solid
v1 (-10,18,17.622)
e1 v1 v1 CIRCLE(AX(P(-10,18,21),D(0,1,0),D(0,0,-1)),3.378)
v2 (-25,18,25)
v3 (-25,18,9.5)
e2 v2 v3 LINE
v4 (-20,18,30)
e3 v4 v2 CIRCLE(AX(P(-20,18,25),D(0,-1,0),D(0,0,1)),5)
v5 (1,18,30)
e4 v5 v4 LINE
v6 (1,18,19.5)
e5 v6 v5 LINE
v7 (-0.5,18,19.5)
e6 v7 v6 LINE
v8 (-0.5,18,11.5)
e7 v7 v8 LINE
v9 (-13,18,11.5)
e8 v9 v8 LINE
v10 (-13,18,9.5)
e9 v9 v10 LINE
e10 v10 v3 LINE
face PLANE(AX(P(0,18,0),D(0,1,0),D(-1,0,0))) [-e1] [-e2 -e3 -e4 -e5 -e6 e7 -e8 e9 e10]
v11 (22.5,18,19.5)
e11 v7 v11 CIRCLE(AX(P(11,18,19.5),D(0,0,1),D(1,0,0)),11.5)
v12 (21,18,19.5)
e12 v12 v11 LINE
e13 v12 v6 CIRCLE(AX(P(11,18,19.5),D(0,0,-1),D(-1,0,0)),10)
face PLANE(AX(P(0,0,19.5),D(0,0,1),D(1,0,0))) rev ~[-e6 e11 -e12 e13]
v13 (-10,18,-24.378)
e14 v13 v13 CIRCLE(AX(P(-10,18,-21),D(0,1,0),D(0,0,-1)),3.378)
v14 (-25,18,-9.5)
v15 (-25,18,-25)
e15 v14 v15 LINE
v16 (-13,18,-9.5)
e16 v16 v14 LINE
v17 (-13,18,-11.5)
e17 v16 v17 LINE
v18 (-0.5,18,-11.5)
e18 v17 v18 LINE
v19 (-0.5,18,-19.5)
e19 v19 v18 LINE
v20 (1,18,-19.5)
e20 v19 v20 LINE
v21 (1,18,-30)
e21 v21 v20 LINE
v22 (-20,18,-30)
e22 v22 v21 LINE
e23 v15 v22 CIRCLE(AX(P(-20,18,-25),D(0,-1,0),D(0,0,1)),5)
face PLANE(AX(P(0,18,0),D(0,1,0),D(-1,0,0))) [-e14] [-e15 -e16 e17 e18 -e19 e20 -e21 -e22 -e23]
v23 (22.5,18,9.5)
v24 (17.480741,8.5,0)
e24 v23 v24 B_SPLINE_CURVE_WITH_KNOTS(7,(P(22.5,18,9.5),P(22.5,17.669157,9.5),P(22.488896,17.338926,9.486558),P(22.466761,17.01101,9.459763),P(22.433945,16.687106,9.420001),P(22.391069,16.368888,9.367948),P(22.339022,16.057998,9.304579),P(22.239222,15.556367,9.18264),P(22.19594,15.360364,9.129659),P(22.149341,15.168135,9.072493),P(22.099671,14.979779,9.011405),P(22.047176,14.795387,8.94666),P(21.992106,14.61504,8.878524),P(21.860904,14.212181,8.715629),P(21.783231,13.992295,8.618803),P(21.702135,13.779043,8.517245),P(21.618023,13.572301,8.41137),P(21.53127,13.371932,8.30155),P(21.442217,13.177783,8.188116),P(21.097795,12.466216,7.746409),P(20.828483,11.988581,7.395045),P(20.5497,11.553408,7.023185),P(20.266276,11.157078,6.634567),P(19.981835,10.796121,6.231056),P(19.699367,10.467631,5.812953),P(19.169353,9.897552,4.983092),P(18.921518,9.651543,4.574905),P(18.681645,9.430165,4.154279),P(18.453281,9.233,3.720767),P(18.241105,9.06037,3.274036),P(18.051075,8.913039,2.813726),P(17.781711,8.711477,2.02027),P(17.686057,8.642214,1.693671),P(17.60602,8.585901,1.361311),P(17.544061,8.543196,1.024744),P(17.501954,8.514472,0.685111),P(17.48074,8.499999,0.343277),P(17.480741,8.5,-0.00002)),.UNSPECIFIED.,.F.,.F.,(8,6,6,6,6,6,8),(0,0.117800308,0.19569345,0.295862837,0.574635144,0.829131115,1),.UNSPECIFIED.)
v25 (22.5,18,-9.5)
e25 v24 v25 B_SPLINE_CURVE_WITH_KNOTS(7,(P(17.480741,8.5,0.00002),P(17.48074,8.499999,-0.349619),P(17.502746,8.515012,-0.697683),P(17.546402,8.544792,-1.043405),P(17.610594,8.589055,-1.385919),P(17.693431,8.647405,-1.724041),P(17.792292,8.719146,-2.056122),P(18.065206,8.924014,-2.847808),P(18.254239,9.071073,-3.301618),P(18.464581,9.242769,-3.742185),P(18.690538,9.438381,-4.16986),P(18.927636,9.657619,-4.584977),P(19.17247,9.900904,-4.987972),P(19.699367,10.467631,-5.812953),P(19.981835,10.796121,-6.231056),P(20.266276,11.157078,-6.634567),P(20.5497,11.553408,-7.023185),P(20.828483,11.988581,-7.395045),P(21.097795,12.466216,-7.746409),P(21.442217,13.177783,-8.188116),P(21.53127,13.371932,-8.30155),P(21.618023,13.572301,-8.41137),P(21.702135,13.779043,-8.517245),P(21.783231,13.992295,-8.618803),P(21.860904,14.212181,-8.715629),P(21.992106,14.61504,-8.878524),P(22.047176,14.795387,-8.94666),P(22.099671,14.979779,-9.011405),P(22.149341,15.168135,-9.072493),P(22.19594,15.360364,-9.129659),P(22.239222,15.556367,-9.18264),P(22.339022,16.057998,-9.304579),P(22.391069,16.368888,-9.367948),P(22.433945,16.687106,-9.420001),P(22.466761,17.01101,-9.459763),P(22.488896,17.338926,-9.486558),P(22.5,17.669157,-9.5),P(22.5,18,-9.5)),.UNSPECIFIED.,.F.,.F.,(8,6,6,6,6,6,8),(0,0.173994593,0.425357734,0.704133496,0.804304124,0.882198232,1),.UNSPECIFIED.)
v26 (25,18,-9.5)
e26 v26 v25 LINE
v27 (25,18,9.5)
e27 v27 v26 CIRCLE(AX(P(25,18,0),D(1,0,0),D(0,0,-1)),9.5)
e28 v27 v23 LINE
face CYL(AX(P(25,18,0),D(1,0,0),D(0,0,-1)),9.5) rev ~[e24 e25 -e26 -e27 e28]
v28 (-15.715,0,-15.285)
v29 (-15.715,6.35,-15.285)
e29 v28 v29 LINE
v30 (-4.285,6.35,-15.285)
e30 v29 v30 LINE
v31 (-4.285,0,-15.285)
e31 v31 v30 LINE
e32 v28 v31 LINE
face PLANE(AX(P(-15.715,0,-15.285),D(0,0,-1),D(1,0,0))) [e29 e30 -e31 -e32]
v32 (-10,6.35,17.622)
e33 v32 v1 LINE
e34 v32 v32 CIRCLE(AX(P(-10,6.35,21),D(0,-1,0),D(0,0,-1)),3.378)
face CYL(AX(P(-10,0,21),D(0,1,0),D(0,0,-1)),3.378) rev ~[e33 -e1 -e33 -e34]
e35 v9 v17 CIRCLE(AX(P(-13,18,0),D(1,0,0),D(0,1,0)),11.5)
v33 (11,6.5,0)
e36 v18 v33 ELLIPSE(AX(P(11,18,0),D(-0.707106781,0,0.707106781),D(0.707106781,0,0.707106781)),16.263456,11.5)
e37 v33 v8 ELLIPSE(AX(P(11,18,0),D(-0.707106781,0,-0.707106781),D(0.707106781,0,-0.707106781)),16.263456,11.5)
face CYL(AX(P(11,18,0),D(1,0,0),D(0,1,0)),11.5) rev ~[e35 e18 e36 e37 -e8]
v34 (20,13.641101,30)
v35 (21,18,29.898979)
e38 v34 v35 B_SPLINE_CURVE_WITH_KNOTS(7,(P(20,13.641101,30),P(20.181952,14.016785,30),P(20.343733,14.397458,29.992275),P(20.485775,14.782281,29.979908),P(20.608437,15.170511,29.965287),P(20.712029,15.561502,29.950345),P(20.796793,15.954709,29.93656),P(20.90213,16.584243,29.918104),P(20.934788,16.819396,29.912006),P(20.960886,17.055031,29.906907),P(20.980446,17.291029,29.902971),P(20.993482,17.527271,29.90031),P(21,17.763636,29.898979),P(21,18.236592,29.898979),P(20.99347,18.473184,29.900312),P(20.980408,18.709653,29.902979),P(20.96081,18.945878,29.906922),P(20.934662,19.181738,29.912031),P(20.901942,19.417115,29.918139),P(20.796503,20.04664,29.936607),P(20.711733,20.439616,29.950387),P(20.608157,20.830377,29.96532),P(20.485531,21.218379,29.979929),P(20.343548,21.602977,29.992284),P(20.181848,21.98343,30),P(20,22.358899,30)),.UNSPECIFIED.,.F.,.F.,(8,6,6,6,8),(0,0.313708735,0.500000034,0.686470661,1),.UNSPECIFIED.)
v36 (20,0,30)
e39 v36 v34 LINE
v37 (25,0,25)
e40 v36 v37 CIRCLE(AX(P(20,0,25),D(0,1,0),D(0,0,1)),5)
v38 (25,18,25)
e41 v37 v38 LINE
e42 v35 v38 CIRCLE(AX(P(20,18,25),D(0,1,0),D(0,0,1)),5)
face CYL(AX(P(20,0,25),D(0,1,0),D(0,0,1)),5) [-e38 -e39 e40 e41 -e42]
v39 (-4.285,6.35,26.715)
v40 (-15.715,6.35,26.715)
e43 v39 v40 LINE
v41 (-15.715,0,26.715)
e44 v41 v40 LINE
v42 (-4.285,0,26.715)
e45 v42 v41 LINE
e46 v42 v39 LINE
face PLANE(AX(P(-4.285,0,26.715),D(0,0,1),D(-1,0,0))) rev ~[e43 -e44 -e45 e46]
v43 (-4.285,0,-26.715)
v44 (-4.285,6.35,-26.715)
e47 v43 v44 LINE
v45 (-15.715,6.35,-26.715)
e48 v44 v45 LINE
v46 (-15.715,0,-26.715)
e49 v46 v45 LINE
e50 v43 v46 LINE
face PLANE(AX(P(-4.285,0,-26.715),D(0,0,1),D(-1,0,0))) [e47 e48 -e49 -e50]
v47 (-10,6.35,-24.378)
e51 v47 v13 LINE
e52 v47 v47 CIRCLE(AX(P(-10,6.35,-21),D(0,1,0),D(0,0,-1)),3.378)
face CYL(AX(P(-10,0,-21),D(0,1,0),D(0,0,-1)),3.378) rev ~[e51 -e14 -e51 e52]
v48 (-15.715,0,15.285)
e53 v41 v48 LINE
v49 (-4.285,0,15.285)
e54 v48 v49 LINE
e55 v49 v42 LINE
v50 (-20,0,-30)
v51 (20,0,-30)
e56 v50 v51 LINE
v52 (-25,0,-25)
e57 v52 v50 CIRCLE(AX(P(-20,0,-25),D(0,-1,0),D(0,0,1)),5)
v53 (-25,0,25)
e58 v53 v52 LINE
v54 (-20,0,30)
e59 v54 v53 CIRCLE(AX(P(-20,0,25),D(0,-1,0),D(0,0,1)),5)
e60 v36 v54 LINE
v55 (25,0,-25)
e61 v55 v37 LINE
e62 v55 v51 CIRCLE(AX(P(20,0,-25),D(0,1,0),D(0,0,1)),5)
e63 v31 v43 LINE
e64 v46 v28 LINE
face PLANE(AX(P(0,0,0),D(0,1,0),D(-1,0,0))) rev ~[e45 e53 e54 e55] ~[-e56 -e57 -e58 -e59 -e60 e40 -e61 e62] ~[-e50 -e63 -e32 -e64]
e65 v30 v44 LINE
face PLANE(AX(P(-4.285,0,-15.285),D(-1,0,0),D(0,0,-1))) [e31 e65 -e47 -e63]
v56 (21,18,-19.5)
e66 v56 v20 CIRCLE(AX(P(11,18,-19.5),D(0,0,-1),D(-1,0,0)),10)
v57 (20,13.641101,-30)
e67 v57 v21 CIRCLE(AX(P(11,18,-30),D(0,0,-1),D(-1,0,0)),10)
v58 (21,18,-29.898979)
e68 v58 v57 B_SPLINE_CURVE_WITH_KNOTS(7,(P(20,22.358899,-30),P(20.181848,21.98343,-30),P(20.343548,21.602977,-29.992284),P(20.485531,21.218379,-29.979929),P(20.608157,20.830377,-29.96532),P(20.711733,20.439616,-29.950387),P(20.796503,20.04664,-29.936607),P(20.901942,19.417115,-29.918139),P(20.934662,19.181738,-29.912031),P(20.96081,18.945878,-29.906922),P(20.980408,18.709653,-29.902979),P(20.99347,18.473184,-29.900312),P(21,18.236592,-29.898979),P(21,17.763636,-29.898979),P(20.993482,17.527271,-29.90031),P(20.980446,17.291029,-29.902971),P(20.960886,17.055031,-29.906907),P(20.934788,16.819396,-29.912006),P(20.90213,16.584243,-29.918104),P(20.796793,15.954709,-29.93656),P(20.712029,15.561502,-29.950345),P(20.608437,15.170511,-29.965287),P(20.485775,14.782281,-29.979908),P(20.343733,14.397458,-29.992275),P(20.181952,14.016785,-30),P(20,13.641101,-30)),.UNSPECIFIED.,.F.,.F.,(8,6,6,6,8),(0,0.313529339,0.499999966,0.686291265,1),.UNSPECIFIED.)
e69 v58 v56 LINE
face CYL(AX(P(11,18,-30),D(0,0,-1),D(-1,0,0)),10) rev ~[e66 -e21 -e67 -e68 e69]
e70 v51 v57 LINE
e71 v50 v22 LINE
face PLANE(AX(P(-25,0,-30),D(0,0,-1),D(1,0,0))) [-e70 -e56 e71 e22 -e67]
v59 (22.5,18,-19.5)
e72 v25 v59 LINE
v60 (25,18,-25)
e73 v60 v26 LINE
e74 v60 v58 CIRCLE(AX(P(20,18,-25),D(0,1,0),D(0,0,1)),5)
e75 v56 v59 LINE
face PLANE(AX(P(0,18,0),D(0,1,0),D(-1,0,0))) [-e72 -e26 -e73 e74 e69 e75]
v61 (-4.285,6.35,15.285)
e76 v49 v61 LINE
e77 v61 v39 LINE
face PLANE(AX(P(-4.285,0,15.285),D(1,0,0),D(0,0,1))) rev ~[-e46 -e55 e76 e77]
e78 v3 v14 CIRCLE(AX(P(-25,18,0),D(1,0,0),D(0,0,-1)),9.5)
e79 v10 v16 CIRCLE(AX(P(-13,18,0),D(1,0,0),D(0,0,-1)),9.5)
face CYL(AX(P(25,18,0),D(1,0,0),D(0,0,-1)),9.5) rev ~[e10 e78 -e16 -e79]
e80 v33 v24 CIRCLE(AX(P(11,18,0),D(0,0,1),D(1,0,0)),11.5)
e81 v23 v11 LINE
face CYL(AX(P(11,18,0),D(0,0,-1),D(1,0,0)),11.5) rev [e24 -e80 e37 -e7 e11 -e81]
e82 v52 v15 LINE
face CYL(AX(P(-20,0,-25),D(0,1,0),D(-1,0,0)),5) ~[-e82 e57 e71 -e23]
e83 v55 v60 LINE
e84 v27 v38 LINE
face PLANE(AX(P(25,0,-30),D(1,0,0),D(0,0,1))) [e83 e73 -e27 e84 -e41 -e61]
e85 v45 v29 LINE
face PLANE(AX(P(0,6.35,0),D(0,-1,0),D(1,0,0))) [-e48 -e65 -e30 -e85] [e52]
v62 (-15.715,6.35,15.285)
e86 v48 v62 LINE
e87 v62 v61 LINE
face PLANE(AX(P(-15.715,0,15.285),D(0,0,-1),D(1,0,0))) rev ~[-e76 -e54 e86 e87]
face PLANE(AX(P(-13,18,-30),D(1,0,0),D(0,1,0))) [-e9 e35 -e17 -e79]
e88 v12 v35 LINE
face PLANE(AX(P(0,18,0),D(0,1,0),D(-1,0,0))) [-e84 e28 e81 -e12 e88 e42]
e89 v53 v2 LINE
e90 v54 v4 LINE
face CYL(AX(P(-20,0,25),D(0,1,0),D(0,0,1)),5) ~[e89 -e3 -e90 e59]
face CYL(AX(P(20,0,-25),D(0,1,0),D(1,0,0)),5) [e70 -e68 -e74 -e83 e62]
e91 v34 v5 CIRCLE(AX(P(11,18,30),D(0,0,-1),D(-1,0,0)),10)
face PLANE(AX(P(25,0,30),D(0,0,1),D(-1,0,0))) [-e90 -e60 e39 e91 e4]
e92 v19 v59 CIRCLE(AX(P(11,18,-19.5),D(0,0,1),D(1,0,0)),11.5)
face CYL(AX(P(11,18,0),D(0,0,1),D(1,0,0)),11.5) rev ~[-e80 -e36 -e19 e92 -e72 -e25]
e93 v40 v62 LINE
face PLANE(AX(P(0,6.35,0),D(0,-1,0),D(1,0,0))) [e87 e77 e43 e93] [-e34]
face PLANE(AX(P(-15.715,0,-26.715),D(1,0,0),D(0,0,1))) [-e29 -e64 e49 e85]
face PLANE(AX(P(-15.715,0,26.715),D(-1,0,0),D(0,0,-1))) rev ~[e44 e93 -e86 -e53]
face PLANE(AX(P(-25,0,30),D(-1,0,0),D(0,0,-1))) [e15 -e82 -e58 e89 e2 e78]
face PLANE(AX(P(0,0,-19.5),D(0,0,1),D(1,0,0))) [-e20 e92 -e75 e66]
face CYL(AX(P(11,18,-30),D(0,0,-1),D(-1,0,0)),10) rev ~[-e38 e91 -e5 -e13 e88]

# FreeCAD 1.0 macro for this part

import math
import FreeCAD as App
import Part
import Sketcher


def edges_at(feature, points):
    """Names of the edges that pass closest to the given points."""
    edges = feature.Shape.Edges
    near = lambda p: min(range(len(edges)), key=lambda i: edges[i].distToShape(Part.Vertex(*p))[0])
    return sorted({f"Edge{near(p) + 1}" for p in points})

doc = App.newDocument("Part")
params = doc.addObject("Spreadsheet::Sheet", "Params")
for row, (alias, value) in enumerate([
    ("sketch1_width", "50 mm"),
    ("sketch1_height", "60 mm"),
    ("pad1_length", "18 mm"),
    ("sketch2_radius", "9.5 mm"),
    ("sketch3_radius", "10 mm"),
    ("sketch4_diameter", "23 mm"),
    ("pocket3_length", "39 mm"),
    ("sketch5_diameter", "23 mm"),
    ("pocket4_length", "24 mm"),
    ("hole_diameter", "6.756 mm"),
    ("fillet_radius", "5 mm"),
    ("sketch7_width", "11.43 mm"),
    ("pocket5_length", "6.35 mm"),
], start=1):
    params.set(f"A{row}", alias)
    params.set(f"B{row}", "=" + value)
    params.setAlias(f"B{row}", alias)

body = doc.addObject("PartDesign::Body", "Body")

# Sketch on XZ plane
sketch1 = doc.addObject("Sketcher::SketchObject", "Sketch")
body.addObject(sketch1)
sketch1.AttachmentSupport = (doc.XZ_Plane, [""])
sketch1.MapMode = "FlatFace"
sketch1.addGeometry([
    Part.LineSegment(App.Vector(-25, 30, 0), App.Vector(25, 30, 0)),
    Part.LineSegment(App.Vector(25, 30, 0), App.Vector(25, -30, 0)),
    Part.LineSegment(App.Vector(25, -30, 0), App.Vector(-25, -30, 0)),
    Part.LineSegment(App.Vector(-25, -30, 0), App.Vector(-25, 30, 0)),
], False)
sketch1.addConstraint([
    Sketcher.Constraint("Coincident", 0, 2, 1, 1),
    Sketcher.Constraint("Coincident", 1, 2, 2, 1),
    Sketcher.Constraint("Coincident", 2, 2, 3, 1),
    Sketcher.Constraint("Coincident", 3, 2, 0, 1),
    Sketcher.Constraint("Horizontal", 0),
    Sketcher.Constraint("Vertical", 1),
    Sketcher.Constraint("Horizontal", 2),
    Sketcher.Constraint("Vertical", 3),
    Sketcher.Constraint("Symmetric", 0, 2, 2, 2, -1, 1),
    Sketcher.Constraint("DistanceX", 0, 1, 0, 2, 50.0),
    Sketcher.Constraint("DistanceY", 1, 2, 1, 1, 60.0),
])
sketch1.setExpression("Constraints[9]", "Params.sketch1_width")
sketch1.setExpression("Constraints[10]", "Params.sketch1_height")
pad1 = doc.addObject("PartDesign::Pad", "Pad")
body.addObject(pad1)
pad1.Profile = sketch1
pad1.setExpression("Length", "Params.pad1_length")
pad1.Reversed = True

# Sketch on YZ plane
sketch2 = doc.addObject("Sketcher::SketchObject", "Sketch001")
body.addObject(sketch2)
sketch2.AttachmentSupport = (doc.YZ_Plane, [""])
sketch2.MapMode = "FlatFace"
sketch2.AttachmentOffset = App.Placement(App.Vector(0, 0, 25), App.Rotation())
sketch2.addGeometry([
    Part.ArcOfCircle(Part.Circle(App.Vector(18, 0, 0), App.Vector(0, 0, 1), 10), math.radians(90), math.radians(270)),
    Part.LineSegment(App.Vector(18, -10, 0), App.Vector(18, 10, 0)),
], False)
sketch2.addConstraint([
    Sketcher.Constraint("Coincident", 0, 1, 1, 2),
    Sketcher.Constraint("Coincident", 1, 1, 0, 2),
    Sketcher.Constraint("Vertical", 1),
    Sketcher.Constraint("PointOnObject", 0, 3, -1),
    Sketcher.Constraint("Radius", 0, 9.5),
    Sketcher.Constraint("DistanceX", -1, 1, 0, 3, 18.0),
    Sketcher.Constraint("DistanceX", -1, 1, 0, 1, 18.0),
])
sketch2.setExpression("Constraints[4]", "Params.sketch2_radius")
pocket1 = doc.addObject("PartDesign::Pocket", "Pocket")
body.addObject(pocket1)
pocket1.Profile = sketch2
pocket1.Type = "ThroughAll"

# Sketch on XY plane
sketch3 = doc.addObject("Sketcher::SketchObject", "Sketch002")
body.addObject(sketch3)
sketch3.AttachmentSupport = (doc.XY_Plane, [""])
sketch3.MapMode = "FlatFace"
sketch3.AttachmentOffset = App.Placement(App.Vector(0, 0, -30), App.Rotation())
sketch3.addGeometry([
    Part.LineSegment(App.Vector(1, 18, 0), App.Vector(21, 18, 0)),
    Part.ArcOfCircle(Part.Circle(App.Vector(11, 18, 0), App.Vector(0, 0, 1), 10), math.radians(180), math.radians(360)),
], False)
sketch3.addConstraint([
    Sketcher.Constraint("Coincident", 0, 1, 1, 1),
    Sketcher.Constraint("Coincident", 1, 2, 0, 2),
    Sketcher.Constraint("Horizontal", 0),
    Sketcher.Constraint("Horizontal", 1, 3, 0, 1),
    Sketcher.Constraint("Radius", 1, 10.0),
    Sketcher.Constraint("DistanceX", -1, 1, 1, 3, 11.0),
    Sketcher.Constraint("DistanceY", -1, 1, 1, 3, 18.0),
])
sketch3.setExpression("Constraints[4]", "Params.sketch3_radius")
pocket2 = doc.addObject("PartDesign::Pocket", "Pocket001")
body.addObject(pocket2)
pocket2.Profile = sketch3
pocket2.Type = "ThroughAll"
pocket2.Reversed = True

# Sketch on XY plane
sketch4 = doc.addObject("Sketcher::SketchObject", "Sketch003")
body.addObject(sketch4)
sketch4.AttachmentSupport = (doc.XY_Plane, [""])
sketch4.MapMode = "FlatFace"
sketch4.addGeometry(Part.Circle(App.Vector(11, 18, 0), App.Vector(0, 0, 1), 12), False)
sketch4.addConstraint([
    Sketcher.Constraint("Diameter", 0, 23.0),
    Sketcher.Constraint("DistanceX", -1, 1, 0, 3, 11.0),
    Sketcher.Constraint("DistanceY", -1, 1, 0, 3, 18.0),
])
sketch4.setExpression("Constraints[0]", "Params.sketch4_diameter")
pocket3 = doc.addObject("PartDesign::Pocket", "Pocket002")
body.addObject(pocket3)
pocket3.Profile = sketch4
pocket3.setExpression("Length", "Params.pocket3_length")
pocket3.Midplane = True

# Sketch on YZ plane
sketch5 = doc.addObject("Sketcher::SketchObject", "Sketch004")
body.addObject(sketch5)
sketch5.AttachmentSupport = (doc.YZ_Plane, [""])
sketch5.MapMode = "FlatFace"
sketch5.AttachmentOffset = App.Placement(App.Vector(0, 0, 11), App.Rotation())
sketch5.addGeometry(Part.Circle(App.Vector(18, 0, 0), App.Vector(0, 0, 1), 12), False)
sketch5.addConstraint([
    Sketcher.Constraint("PointOnObject", 0, 3, -1),
    Sketcher.Constraint("Diameter", 0, 23.0),
    Sketcher.Constraint("DistanceX", -1, 1, 0, 3, 18.0),
])
sketch5.setExpression("Constraints[1]", "Params.sketch5_diameter")
pocket4 = doc.addObject("PartDesign::Pocket", "Pocket003")
body.addObject(pocket4)
pocket4.Profile = sketch5
pocket4.setExpression("Length", "Params.pocket4_length")

# Sketch on XZ plane
sketch6 = doc.addObject("Sketcher::SketchObject", "Sketch005")
body.addObject(sketch6)
sketch6.AttachmentSupport = (doc.XZ_Plane, [""])
sketch6.MapMode = "FlatFace"
sketch6.addGeometry([
    Part.Circle(App.Vector(-10, -21, 0), App.Vector(0, 0, 1), 3.4),
    Part.Circle(App.Vector(-10, 21, 0), App.Vector(0, 0, 1), 3.4),
], False)
sketch6.addConstraint([
    Sketcher.Constraint("Equal", 0, 1),
    Sketcher.Constraint("Symmetric", 0, 3, 1, 3, -1),
    Sketcher.Constraint("Diameter", 0, 6.756),
    Sketcher.Constraint("DistanceX", 0, 3, -1, 1, 10.0),
    Sketcher.Constraint("DistanceY", 0, 3, -1, 1, 21.0),
])
doc.recompute()
hole = doc.addObject("PartDesign::Hole", "Hole")
body.addObject(hole)
hole.Profile = sketch6
hole.ThreadType = "None"
hole.setExpression("Diameter", "Params.hole_diameter")
hole.DepthType = "ThroughAll"
doc.recompute()

fillet = doc.addObject("PartDesign::Fillet", "Fillet")
body.addObject(fillet)
fillet.Base = (hole, edges_at(hole, [
    (-25, 9, -30),
    (-25, 9, 30),
    (25, 9, 30),
    (25, 9, -30),
]))
fillet.setExpression("Radius", "Params.fillet_radius")

# Sketch on XZ plane
sketch7 = doc.addObject("Sketcher::SketchObject", "Sketch006")
body.addObject(sketch7)
sketch7.AttachmentSupport = (doc.XZ_Plane, [""])
sketch7.MapMode = "FlatFace"
sketch7.addGeometry([
    Part.LineSegment(App.Vector(-15.7, -26.7, 0), App.Vector(-4.3, -26.7, 0)),  # 0
    Part.LineSegment(App.Vector(-4.3, -26.7, 0), App.Vector(-4.3, -15.3, 0)),  # 1
    Part.LineSegment(App.Vector(-4.3, -15.3, 0), App.Vector(-15.7, -15.3, 0)),  # 2
    Part.LineSegment(App.Vector(-15.7, -15.3, 0), App.Vector(-15.7, -26.7, 0)),  # 3
    Part.Circle(App.Vector(-10, -21, 0), App.Vector(0, 0, 1), 3.4),  # 4
    Part.LineSegment(App.Vector(-4.3, 15.3, 0), App.Vector(-4.3, 26.7, 0)),  # 5
    Part.LineSegment(App.Vector(-4.3, 26.7, 0), App.Vector(-15.7, 26.7, 0)),  # 6
    Part.LineSegment(App.Vector(-15.7, 26.7, 0), App.Vector(-15.7, 15.3, 0)),  # 7
    Part.LineSegment(App.Vector(-15.7, 15.3, 0), App.Vector(-4.3, 15.3, 0)),  # 8
    Part.Circle(App.Vector(-10, 21, 0), App.Vector(0, 0, 1), 3.4),  # 9
], False)
sketch7.addConstraint([
    Sketcher.Constraint("Coincident", 0, 2, 1, 1),
    Sketcher.Constraint("Coincident", 1, 2, 2, 1),
    Sketcher.Constraint("Coincident", 2, 2, 3, 1),
    Sketcher.Constraint("Coincident", 3, 2, 0, 1),
    Sketcher.Constraint("Coincident", 5, 2, 6, 1),
    Sketcher.Constraint("Coincident", 6, 2, 7, 1),
    Sketcher.Constraint("Coincident", 7, 2, 8, 1),
    Sketcher.Constraint("Coincident", 8, 2, 5, 1),
    Sketcher.Constraint("Horizontal", 0),
    Sketcher.Constraint("Vertical", 1),
    Sketcher.Constraint("Horizontal", 2),
    Sketcher.Constraint("Vertical", 3),
    Sketcher.Constraint("Vertical", 5),
    Sketcher.Constraint("Horizontal", 6),
    Sketcher.Constraint("Vertical", 7),
    Sketcher.Constraint("Horizontal", 8),
    Sketcher.Constraint("Equal", 4, 9),
    Sketcher.Constraint("Symmetric", 4, 3, 9, 3, -1),
    Sketcher.Constraint("Symmetric", 0, 2, 5, 2, -1),
    Sketcher.Constraint("Symmetric", 2, 2, 7, 2, -1),
    Sketcher.Constraint("Equal", 8, 1),
    Sketcher.Constraint("DistanceX", 0, 1, 0, 2, 11.43),
    Sketcher.Constraint("Diameter", 4, 6.756),
    Sketcher.Constraint("DistanceX", 4, 3, -1, 1, 10.0),
    Sketcher.Constraint("DistanceY", 4, 3, -1, 1, 21.0),
    Sketcher.Constraint("DistanceY", 1, 2, 5, 2, 42.0),
    Sketcher.Constraint("DistanceX", 0, 2, -1, 1, 4.285),
])
sketch7.setExpression("Constraints[21]", "Params.sketch7_width")
pocket5 = doc.addObject("PartDesign::Pocket", "Pocket004")
body.addObject(pocket5)
pocket5.Profile = sketch7
pocket5.setExpression("Length", "Params.pocket5_length")

doc.recompute()
